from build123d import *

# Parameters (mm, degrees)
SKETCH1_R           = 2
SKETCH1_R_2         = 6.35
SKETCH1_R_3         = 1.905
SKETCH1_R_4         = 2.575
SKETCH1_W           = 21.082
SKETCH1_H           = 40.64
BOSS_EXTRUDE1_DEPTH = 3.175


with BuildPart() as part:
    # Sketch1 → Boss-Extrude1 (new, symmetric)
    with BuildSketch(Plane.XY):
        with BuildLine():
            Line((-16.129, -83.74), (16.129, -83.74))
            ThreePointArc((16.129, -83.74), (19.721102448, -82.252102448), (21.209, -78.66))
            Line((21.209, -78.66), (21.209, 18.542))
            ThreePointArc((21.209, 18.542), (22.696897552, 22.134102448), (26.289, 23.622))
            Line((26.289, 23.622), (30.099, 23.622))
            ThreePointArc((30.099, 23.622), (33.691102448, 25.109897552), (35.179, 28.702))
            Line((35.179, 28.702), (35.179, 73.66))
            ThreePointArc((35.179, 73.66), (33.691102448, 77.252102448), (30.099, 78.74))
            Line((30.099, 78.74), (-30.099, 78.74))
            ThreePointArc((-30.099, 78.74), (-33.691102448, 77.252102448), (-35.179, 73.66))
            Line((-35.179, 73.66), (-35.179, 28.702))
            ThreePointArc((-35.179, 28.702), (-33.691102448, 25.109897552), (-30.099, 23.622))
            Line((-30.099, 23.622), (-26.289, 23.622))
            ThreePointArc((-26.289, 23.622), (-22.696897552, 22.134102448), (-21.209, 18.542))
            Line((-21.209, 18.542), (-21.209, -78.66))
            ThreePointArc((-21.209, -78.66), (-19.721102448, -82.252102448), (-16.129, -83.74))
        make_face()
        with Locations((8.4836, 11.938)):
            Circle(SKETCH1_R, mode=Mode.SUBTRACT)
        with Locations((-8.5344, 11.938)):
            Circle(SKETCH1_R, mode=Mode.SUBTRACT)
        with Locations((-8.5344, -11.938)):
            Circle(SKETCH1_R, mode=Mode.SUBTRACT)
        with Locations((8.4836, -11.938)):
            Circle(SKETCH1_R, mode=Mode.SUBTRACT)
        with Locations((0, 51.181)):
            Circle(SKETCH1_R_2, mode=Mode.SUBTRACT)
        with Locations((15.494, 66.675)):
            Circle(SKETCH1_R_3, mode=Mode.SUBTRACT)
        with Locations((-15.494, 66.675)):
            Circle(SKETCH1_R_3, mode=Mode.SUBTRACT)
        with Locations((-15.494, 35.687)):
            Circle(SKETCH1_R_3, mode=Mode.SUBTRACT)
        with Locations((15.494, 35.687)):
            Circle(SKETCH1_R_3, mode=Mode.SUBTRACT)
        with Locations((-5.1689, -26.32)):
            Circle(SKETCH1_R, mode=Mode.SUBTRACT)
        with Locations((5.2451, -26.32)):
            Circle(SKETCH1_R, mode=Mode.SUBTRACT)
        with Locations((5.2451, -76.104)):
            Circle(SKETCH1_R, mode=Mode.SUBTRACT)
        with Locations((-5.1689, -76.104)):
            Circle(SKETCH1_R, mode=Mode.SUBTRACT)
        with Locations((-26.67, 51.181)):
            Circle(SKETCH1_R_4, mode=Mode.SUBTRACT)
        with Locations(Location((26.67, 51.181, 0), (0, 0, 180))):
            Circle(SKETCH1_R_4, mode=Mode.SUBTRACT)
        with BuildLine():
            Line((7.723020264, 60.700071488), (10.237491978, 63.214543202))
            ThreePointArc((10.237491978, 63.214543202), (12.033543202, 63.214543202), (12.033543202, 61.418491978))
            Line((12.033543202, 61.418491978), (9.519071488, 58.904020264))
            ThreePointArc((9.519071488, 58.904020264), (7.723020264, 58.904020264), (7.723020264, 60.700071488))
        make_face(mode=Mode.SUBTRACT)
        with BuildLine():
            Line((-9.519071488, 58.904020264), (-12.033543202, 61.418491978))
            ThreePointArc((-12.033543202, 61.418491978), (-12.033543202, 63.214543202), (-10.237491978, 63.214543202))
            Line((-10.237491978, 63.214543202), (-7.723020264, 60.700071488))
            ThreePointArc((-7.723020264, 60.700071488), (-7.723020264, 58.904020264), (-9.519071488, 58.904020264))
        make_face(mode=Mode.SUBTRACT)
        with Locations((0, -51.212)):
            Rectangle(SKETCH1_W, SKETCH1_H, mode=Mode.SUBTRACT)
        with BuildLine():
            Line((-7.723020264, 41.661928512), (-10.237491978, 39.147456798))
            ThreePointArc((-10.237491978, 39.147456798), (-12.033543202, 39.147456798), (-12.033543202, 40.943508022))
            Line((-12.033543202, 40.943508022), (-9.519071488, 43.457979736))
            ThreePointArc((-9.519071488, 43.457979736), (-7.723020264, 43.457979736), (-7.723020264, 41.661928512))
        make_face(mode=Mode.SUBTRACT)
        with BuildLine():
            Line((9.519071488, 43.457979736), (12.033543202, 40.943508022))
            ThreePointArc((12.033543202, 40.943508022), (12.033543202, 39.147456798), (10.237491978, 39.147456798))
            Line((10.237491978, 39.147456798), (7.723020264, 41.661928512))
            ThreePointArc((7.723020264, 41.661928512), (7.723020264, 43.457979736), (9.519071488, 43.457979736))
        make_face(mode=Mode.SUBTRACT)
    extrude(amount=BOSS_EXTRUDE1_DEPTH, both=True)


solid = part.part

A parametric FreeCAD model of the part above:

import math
import FreeCAD as App
import Part
import Sketcher
from FreeCAD import Vector
Q = App.Units.Quantity

doc = App.newDocument("Part")
body = doc.addObject("PartDesign::Body", "Body")

# Sketch on XY plane
sketch1 = doc.addObject("Sketcher::SketchObject", "Sketch")
body.addObject(sketch1)
sketch1.AttachmentSupport = (doc.XY_Plane, [""])
sketch1.MapMode = "FlatFace"
sketch1.addGeometry([
    Part.LineSegment(Vector(-16.1, -83.7, 0), Vector(16.1, -83.7, 0)),  # 0
    Part.ArcOfCircle(Part.Circle(Vector(16.1, -78.7, 0), Vector(0, 0, 1), 5.1), math.radians(-90), math.radians(0)),  # 1
    Part.LineSegment(Vector(21.2, -78.7, 0), Vector(21.2, 18.5, 0)),  # 2
    Part.ArcOfCircle(Part.Circle(Vector(26.3, 18.5, 0), Vector(0, 0, 1), 5.1), math.radians(90), math.radians(180)),  # 3
    Part.LineSegment(Vector(26.3, 23.6, 0), Vector(30.1, 23.6, 0)),  # 4
    Part.ArcOfCircle(Part.Circle(Vector(30.1, 28.7, 0), Vector(0, 0, 1), 5.1), math.radians(-90), math.radians(0)),  # 5
    Part.LineSegment(Vector(35.2, 28.7, 0), Vector(35.2, 73.7, 0)),  # 6
    Part.ArcOfCircle(Part.Circle(Vector(30.1, 73.7, 0), Vector(0, 0, 1), 5.1), math.radians(0), math.radians(90)),  # 7
    Part.LineSegment(Vector(30.1, 78.7, 0), Vector(-30.1, 78.7, 0)),  # 8
    Part.ArcOfCircle(Part.Circle(Vector(-30.1, 73.7, 0), Vector(0, 0, 1), 5.1), math.radians(90), math.radians(180)),  # 9
    Part.LineSegment(Vector(-35.2, 73.7, 0), Vector(-35.2, 28.7, 0)),  # 10
    Part.ArcOfCircle(Part.Circle(Vector(-30.1, 28.7, 0), Vector(0, 0, 1), 5.1), math.radians(-180), math.radians(-90)),  # 11
    Part.LineSegment(Vector(-30.1, 23.6, 0), Vector(-26.3, 23.6, 0)),  # 12
    Part.ArcOfCircle(Part.Circle(Vector(-26.3, 18.5, 0), Vector(0, 0, 1), 5.1), math.radians(0), math.radians(90)),  # 13
    Part.LineSegment(Vector(-21.2, 18.5, 0), Vector(-21.2, -78.7, 0)),  # 14
    Part.ArcOfCircle(Part.Circle(Vector(-16.1, -78.7, 0), Vector(0, 0, 1), 5.1), math.radians(-180), math.radians(-90)),  # 15
    Part.Circle(Vector(-5.2, -76.1, 0), Vector(0, 0, 1), 2),  # 16
    Part.Circle(Vector(-5.2, -26.3, 0), Vector(0, 0, 1), 2),  # 17
    Part.Circle(Vector(-8.5, -11.9, 0), Vector(0, 0, 1), 2),  # 18
    Part.Circle(Vector(5.2, -76.1, 0), Vector(0, 0, 1), 2),  # 19
    Part.LineSegment(Vector(10.5, -71.5, 0), Vector(-10.5, -71.5, 0)),  # 20
    Part.LineSegment(Vector(-10.5, -71.5, 0), Vector(-10.5, -30.9, 0)),  # 21
    Part.LineSegment(Vector(-10.5, -30.9, 0), Vector(10.5, -30.9, 0)),  # 22
    Part.LineSegment(Vector(10.5, -30.9, 0), Vector(10.5, -71.5, 0)),  # 23
    Part.Circle(Vector(5.2, -26.3, 0), Vector(0, 0, 1), 2),  # 24
    Part.Circle(Vector(8.5, -11.9, 0), Vector(0, 0, 1), 2),  # 25
    Part.Circle(Vector(-8.5, 11.9, 0), Vector(0, 0, 1), 2),  # 26
    Part.Circle(Vector(-15.5, 35.7, 0), Vector(0, 0, 1), 1.9),  # 27
    Part.Circle(Vector(-26.7, 51.2, 0), Vector(0, 0, 1), 2.6),  # 28
    Part.Circle(Vector(-15.5, 66.7, 0), Vector(0, 0, 1), 1.9),  # 29
    Part.ArcOfCircle(Part.Circle(Vector(-8.6, 42.6, 0), Vector(0, 0, 1), 1.3), math.radians(-45), math.radians(135)),  # 30
    Part.LineSegment(Vector(-7.7, 41.7, 0), Vector(-10.2, 39.1, 0)),  # 31
    Part.ArcOfCircle(Part.Circle(Vector(-11.1, 40, 0), Vector(0, 0, 1), 1.3), math.radians(135), math.radians(315)),  # 32
    Part.LineSegment(Vector(-12, 40.9, 0), Vector(-9.5, 43.5, 0)),  # 33
    Part.ArcOfCircle(Part.Circle(Vector(-8.6, 59.8, 0), Vector(0, 0, 1), 1.3), math.radians(-135), math.radians(45)),  # 34
    Part.LineSegment(Vector(-9.5, 58.9, 0), Vector(-12, 61.4, 0)),  # 35
    Part.ArcOfCircle(Part.Circle(Vector(-11.1, 62.3, 0), Vector(0, 0, 1), 1.3), math.radians(45), math.radians(225)),  # 36
    Part.LineSegment(Vector(-10.2, 63.2, 0), Vector(-7.7, 60.7, 0)),  # 37
    Part.Circle(Vector(8.5, 11.9, 0), Vector(0, 0, 1), 2),  # 38
    Part.ArcOfCircle(Part.Circle(Vector(8.6, 42.6, 0), Vector(0, 0, 1), 1.3), math.radians(45), math.radians(225)),  # 39
    Part.LineSegment(Vector(9.5, 43.5, 0), Vector(12, 40.9, 0)),  # 40
    Part.ArcOfCircle(Part.Circle(Vector(11.1, 40, 0), Vector(0, 0, 1), 1.3), math.radians(-135), math.radians(45)),  # 41
    Part.LineSegment(Vector(10.2, 39.1, 0), Vector(7.7, 41.7, 0)),  # 42
    Part.Circle(Vector(0, 51.2, 0), Vector(0, 0, 1), 6.3),  # 43
    Part.ArcOfCircle(Part.Circle(Vector(8.6, 59.8, 0), Vector(0, 0, 1), 1.3), math.radians(135), math.radians(315)),  # 44
    Part.LineSegment(Vector(7.7, 60.7, 0), Vector(10.2, 63.2, 0)),  # 45
    Part.ArcOfCircle(Part.Circle(Vector(11.1, 62.3, 0), Vector(0, 0, 1), 1.3), math.radians(-45), math.radians(135)),  # 46
    Part.LineSegment(Vector(12, 61.4, 0), Vector(9.5, 58.9, 0)),  # 47
    Part.Circle(Vector(15.5, 35.7, 0), Vector(0, 0, 1), 1.9),  # 48
    Part.Circle(Vector(15.5, 66.7, 0), Vector(0, 0, 1), 1.9),  # 49
    Part.Circle(Vector(26.7, 51.2, 0), Vector(0, 0, 1), 2.6),  # 50
], False)
sketch1.addConstraint([
    Sketcher.Constraint("Tangent", 0, 2, 1, 1),
    Sketcher.Constraint("Tangent", 1, 2, 2, 1),
    Sketcher.Constraint("Tangent", 2, 2, 3, 2),
    Sketcher.Constraint("Tangent", 3, 1, 4, 1),
    Sketcher.Constraint("Tangent", 4, 2, 5, 1),
    Sketcher.Constraint("Tangent", 5, 2, 6, 1),
    Sketcher.Constraint("Tangent", 6, 2, 7, 1),
    Sketcher.Constraint("Tangent", 7, 2, 8, 1),
    Sketcher.Constraint("Tangent", 8, 2, 9, 1),
    Sketcher.Constraint("Tangent", 9, 2, 10, 1),
    Sketcher.Constraint("Tangent", 10, 2, 11, 1),
    Sketcher.Constraint("Tangent", 11, 2, 12, 1),
    Sketcher.Constraint("Tangent", 12, 2, 13, 2),
    Sketcher.Constraint("Tangent", 13, 1, 14, 1),
    Sketcher.Constraint("Tangent", 14, 2, 15, 1),
    Sketcher.Constraint("Tangent", 15, 2, 0, 1),
    Sketcher.Constraint("Coincident", 20, 2, 21, 1),
    Sketcher.Constraint("Coincident", 21, 2, 22, 1),
    Sketcher.Constraint("Coincident", 22, 2, 23, 1),
    Sketcher.Constraint("Coincident", 23, 2, 20, 1),
    Sketcher.Constraint("Tangent", 30, 1, 31, 1),
    Sketcher.Constraint("Tangent", 31, 2, 32, 2),
    Sketcher.Constraint("Tangent", 32, 1, 33, 1),
    Sketcher.Constraint("Tangent", 33, 2, 30, 2),
    Sketcher.Constraint("Tangent", 34, 1, 35, 1),
    Sketcher.Constraint("Tangent", 35, 2, 36, 2),
    Sketcher.Constraint("Tangent", 36, 1, 37, 1),
    Sketcher.Constraint("Tangent", 37, 2, 34, 2),
    Sketcher.Constraint("Tangent", 39, 1, 40, 1),
    Sketcher.Constraint("Tangent", 40, 2, 41, 2),
    Sketcher.Constraint("Tangent", 41, 1, 42, 1),
    Sketcher.Constraint("Tangent", 42, 2, 39, 2),
    Sketcher.Constraint("Tangent", 44, 1, 45, 1),
    Sketcher.Constraint("Tangent", 45, 2, 46, 2),
    Sketcher.Constraint("Tangent", 46, 1, 47, 1),
    Sketcher.Constraint("Tangent", 47, 2, 44, 2),
    Sketcher.Constraint("Horizontal", 0),
    Sketcher.Constraint("Vertical", 2),
    Sketcher.Constraint("Horizontal", 4),
    Sketcher.Constraint("Vertical", 6),
    Sketcher.Constraint("Horizontal", 8),
    Sketcher.Constraint("Vertical", 10),
    Sketcher.Constraint("Horizontal", 12),
    Sketcher.Constraint("Vertical", 14),
    Sketcher.Constraint("Horizontal", 20),
    Sketcher.Constraint("Vertical", 21),
    Sketcher.Constraint("Horizontal", 22),
    Sketcher.Constraint("Vertical", 23),
    Sketcher.Constraint("Equal", 1, 3),
    Sketcher.Constraint("Equal", 3, 5),
    Sketcher.Constraint("Equal", 5, 7),
    Sketcher.Constraint("Equal", 7, 9),
    Sketcher.Constraint("Equal", 9, 11),
    Sketcher.Constraint("Equal", 11, 13),
    Sketcher.Constraint("Equal", 13, 15),
    Sketcher.Constraint("Equal", 16, 17),
    Sketcher.Constraint("Equal", 17, 18),
    Sketcher.Constraint("Equal", 18, 19),
    Sketcher.Constraint("Equal", 19, 24),
    Sketcher.Constraint("Equal", 24, 25),
    Sketcher.Constraint("Equal", 25, 26),
    Sketcher.Constraint("Equal", 27, 29),
    Sketcher.Constraint("Equal", 30, 32),
    Sketcher.Constraint("Equal", 32, 34),
    Sketcher.Constraint("Equal", 34, 36),
    Sketcher.Constraint("Equal", 26, 38),
    Sketcher.Constraint("Equal", 36, 39),
    Sketcher.Constraint("Equal", 39, 41),
    Sketcher.Constraint("Equal", 41, 44),
    Sketcher.Constraint("Equal", 44, 46),
    Sketcher.Constraint("Equal", 29, 48),
    Sketcher.Constraint("Equal", 48, 49),
    Sketcher.Constraint("Equal", 28, 50),
    Sketcher.Constraint("Symmetric", 5, 3, 11, 3, -2),
    Sketcher.Constraint("Symmetric", 30, 3, 39, 3, -2),
    Sketcher.Constraint("Symmetric", 32, 3, 41, 3, -2),
    Sketcher.Constraint("Symmetric", 34, 3, 44, 3, -2),
    Sketcher.Constraint("Symmetric", 36, 3, 46, 3, -2),
    Sketcher.Constraint("Symmetric", 27, 3, 48, 3, -2),
    Sketcher.Constraint("Symmetric", 29, 3, 49, 3, -2),
    Sketcher.Constraint("Symmetric", 28, 3, 50, 3, -2),
    Sketcher.Constraint("Symmetric", 18, 3, 26, 3, -1),
    Sketcher.Constraint("Symmetric", 25, 3, 38, 3, -1),
    Sketcher.Constraint("PointOnObject", 43, 3, -2),
    Sketcher.Constraint("Perpendicular", 33, 35),
    Sketcher.Constraint("Parallel", 37, 40),
    Sketcher.Constraint("Horizontal", 16, 3, 19, 3),
    Sketcher.Constraint("Horizontal", 17, 3, 24, 3),
    Sketcher.Constraint("Horizontal", 18, 3, 25, 3),
    Sketcher.Constraint("Horizontal", 28, 3, 43, 3),
    Sketcher.Constraint("Vertical", 16, 3, 17, 3),
    Sketcher.Constraint("Vertical", 19, 3, 24, 3),
    Sketcher.Constraint("Vertical", 27, 3, 29, 3),
    Sketcher.Constraint("Vertical", 30, 3, 34, 3),
    Sketcher.Constraint("Vertical", 32, 3, 36, 3),
    Sketcher.Constraint("Equal", 4, 12),
    Sketcher.Constraint("Diameter", 43, Q("0.5 in")),
    Sketcher.Constraint("Radius", 1, Q("0.2 in")),
    Sketcher.Constraint("Diameter", 27, Q("0.15 in")),
    Sketcher.Constraint("Radius", 30, Q("0.05 in")),
    Sketcher.Constraint("DistanceY", 21, 1, 21, 2, Q("1.6 in")),
    Sketcher.Constraint("DistanceX", 0, 1, 0, 2, Q("1.27 in")),
    Sketcher.Constraint("DistanceX", 4, 1, 4, 2, Q("0.15 in")),
    Sketcher.Constraint("DistanceX", 20, 2, 20, 1, Q("0.83 in")),
    Sketcher.Constraint("DistanceY", 6, 1, 6, 2, Q("1.77 in")),
    Sketcher.Constraint("DistanceY", -1, 1, 7, 3, Q("2.9 in")),
    Sketcher.Constraint("Distance", 31, Q("0.14 in")),
    Sketcher.Constraint("Diameter", 16, Q("4 mm")),
    Sketcher.Constraint("Diameter", 28, Q("5.15 mm")),
    Sketcher.Constraint("DistanceY", 18, 3, -1, 1, Q("0.47 in")),
    Sketcher.Constraint("DistanceX", 27, 3, -1, 1, Q("0.61 in")),
    Sketcher.Constraint("DistanceX", 28, 3, -1, 1, Q("1.05 in")),
    Sketcher.Constraint("DistanceX", 18, 3, -1, 1, Q("0.336 in")),
    Sketcher.Constraint("DistanceX", -1, 1, 25, 3, Q("0.334 in")),
    Sketcher.Constraint("DistanceY", -1, 1, 27, 3, Q("1.405 in")),
    Sketcher.Constraint("DistanceY", -1, 1, 28, 3, Q("2.015 in")),
    Sketcher.Constraint("DistanceY", -1, 1, 29, 3, Q("2.625 in")),
    Sketcher.Constraint("DistanceX", 20, 2, -1, 1, Q("0.415 in")),
    Sketcher.Constraint("DistanceY", 2, 1, 2, 2, Q("97.202 mm")),
    Sketcher.Constraint("DistanceX", 16, 3, -1, 1, Q("0.2035 in")),
    Sketcher.Constraint("DistanceX", -1, 1, 19, 3, Q("0.2065 in")),
    Sketcher.Constraint("DistanceY", 16, 3, -1, 1, Q("76.104 mm")),
    Sketcher.Constraint("DistanceY", 17, 3, -1, 1, Q("26.32 mm")),
    Sketcher.Constraint("DistanceY", 20, 2, -1, 1, Q("71.532 mm")),
    Sketcher.Constraint("DistanceX", 30, 1, -1, 1, Q("7.72302 mm")),
    Sketcher.Constraint("DistanceY", -1, 1, 30, 1, Q("41.661929 mm")),
    Sketcher.Constraint("DistanceY", -1, 1, 34, 1, Q("58.90402 mm")),
])
pad1 = doc.addObject("PartDesign::Pad", "Pad")
body.addObject(pad1)
pad1.Profile = sketch1
pad1.Length = Q("0.25 in")
pad1.Midplane = True

doc.recompute()
